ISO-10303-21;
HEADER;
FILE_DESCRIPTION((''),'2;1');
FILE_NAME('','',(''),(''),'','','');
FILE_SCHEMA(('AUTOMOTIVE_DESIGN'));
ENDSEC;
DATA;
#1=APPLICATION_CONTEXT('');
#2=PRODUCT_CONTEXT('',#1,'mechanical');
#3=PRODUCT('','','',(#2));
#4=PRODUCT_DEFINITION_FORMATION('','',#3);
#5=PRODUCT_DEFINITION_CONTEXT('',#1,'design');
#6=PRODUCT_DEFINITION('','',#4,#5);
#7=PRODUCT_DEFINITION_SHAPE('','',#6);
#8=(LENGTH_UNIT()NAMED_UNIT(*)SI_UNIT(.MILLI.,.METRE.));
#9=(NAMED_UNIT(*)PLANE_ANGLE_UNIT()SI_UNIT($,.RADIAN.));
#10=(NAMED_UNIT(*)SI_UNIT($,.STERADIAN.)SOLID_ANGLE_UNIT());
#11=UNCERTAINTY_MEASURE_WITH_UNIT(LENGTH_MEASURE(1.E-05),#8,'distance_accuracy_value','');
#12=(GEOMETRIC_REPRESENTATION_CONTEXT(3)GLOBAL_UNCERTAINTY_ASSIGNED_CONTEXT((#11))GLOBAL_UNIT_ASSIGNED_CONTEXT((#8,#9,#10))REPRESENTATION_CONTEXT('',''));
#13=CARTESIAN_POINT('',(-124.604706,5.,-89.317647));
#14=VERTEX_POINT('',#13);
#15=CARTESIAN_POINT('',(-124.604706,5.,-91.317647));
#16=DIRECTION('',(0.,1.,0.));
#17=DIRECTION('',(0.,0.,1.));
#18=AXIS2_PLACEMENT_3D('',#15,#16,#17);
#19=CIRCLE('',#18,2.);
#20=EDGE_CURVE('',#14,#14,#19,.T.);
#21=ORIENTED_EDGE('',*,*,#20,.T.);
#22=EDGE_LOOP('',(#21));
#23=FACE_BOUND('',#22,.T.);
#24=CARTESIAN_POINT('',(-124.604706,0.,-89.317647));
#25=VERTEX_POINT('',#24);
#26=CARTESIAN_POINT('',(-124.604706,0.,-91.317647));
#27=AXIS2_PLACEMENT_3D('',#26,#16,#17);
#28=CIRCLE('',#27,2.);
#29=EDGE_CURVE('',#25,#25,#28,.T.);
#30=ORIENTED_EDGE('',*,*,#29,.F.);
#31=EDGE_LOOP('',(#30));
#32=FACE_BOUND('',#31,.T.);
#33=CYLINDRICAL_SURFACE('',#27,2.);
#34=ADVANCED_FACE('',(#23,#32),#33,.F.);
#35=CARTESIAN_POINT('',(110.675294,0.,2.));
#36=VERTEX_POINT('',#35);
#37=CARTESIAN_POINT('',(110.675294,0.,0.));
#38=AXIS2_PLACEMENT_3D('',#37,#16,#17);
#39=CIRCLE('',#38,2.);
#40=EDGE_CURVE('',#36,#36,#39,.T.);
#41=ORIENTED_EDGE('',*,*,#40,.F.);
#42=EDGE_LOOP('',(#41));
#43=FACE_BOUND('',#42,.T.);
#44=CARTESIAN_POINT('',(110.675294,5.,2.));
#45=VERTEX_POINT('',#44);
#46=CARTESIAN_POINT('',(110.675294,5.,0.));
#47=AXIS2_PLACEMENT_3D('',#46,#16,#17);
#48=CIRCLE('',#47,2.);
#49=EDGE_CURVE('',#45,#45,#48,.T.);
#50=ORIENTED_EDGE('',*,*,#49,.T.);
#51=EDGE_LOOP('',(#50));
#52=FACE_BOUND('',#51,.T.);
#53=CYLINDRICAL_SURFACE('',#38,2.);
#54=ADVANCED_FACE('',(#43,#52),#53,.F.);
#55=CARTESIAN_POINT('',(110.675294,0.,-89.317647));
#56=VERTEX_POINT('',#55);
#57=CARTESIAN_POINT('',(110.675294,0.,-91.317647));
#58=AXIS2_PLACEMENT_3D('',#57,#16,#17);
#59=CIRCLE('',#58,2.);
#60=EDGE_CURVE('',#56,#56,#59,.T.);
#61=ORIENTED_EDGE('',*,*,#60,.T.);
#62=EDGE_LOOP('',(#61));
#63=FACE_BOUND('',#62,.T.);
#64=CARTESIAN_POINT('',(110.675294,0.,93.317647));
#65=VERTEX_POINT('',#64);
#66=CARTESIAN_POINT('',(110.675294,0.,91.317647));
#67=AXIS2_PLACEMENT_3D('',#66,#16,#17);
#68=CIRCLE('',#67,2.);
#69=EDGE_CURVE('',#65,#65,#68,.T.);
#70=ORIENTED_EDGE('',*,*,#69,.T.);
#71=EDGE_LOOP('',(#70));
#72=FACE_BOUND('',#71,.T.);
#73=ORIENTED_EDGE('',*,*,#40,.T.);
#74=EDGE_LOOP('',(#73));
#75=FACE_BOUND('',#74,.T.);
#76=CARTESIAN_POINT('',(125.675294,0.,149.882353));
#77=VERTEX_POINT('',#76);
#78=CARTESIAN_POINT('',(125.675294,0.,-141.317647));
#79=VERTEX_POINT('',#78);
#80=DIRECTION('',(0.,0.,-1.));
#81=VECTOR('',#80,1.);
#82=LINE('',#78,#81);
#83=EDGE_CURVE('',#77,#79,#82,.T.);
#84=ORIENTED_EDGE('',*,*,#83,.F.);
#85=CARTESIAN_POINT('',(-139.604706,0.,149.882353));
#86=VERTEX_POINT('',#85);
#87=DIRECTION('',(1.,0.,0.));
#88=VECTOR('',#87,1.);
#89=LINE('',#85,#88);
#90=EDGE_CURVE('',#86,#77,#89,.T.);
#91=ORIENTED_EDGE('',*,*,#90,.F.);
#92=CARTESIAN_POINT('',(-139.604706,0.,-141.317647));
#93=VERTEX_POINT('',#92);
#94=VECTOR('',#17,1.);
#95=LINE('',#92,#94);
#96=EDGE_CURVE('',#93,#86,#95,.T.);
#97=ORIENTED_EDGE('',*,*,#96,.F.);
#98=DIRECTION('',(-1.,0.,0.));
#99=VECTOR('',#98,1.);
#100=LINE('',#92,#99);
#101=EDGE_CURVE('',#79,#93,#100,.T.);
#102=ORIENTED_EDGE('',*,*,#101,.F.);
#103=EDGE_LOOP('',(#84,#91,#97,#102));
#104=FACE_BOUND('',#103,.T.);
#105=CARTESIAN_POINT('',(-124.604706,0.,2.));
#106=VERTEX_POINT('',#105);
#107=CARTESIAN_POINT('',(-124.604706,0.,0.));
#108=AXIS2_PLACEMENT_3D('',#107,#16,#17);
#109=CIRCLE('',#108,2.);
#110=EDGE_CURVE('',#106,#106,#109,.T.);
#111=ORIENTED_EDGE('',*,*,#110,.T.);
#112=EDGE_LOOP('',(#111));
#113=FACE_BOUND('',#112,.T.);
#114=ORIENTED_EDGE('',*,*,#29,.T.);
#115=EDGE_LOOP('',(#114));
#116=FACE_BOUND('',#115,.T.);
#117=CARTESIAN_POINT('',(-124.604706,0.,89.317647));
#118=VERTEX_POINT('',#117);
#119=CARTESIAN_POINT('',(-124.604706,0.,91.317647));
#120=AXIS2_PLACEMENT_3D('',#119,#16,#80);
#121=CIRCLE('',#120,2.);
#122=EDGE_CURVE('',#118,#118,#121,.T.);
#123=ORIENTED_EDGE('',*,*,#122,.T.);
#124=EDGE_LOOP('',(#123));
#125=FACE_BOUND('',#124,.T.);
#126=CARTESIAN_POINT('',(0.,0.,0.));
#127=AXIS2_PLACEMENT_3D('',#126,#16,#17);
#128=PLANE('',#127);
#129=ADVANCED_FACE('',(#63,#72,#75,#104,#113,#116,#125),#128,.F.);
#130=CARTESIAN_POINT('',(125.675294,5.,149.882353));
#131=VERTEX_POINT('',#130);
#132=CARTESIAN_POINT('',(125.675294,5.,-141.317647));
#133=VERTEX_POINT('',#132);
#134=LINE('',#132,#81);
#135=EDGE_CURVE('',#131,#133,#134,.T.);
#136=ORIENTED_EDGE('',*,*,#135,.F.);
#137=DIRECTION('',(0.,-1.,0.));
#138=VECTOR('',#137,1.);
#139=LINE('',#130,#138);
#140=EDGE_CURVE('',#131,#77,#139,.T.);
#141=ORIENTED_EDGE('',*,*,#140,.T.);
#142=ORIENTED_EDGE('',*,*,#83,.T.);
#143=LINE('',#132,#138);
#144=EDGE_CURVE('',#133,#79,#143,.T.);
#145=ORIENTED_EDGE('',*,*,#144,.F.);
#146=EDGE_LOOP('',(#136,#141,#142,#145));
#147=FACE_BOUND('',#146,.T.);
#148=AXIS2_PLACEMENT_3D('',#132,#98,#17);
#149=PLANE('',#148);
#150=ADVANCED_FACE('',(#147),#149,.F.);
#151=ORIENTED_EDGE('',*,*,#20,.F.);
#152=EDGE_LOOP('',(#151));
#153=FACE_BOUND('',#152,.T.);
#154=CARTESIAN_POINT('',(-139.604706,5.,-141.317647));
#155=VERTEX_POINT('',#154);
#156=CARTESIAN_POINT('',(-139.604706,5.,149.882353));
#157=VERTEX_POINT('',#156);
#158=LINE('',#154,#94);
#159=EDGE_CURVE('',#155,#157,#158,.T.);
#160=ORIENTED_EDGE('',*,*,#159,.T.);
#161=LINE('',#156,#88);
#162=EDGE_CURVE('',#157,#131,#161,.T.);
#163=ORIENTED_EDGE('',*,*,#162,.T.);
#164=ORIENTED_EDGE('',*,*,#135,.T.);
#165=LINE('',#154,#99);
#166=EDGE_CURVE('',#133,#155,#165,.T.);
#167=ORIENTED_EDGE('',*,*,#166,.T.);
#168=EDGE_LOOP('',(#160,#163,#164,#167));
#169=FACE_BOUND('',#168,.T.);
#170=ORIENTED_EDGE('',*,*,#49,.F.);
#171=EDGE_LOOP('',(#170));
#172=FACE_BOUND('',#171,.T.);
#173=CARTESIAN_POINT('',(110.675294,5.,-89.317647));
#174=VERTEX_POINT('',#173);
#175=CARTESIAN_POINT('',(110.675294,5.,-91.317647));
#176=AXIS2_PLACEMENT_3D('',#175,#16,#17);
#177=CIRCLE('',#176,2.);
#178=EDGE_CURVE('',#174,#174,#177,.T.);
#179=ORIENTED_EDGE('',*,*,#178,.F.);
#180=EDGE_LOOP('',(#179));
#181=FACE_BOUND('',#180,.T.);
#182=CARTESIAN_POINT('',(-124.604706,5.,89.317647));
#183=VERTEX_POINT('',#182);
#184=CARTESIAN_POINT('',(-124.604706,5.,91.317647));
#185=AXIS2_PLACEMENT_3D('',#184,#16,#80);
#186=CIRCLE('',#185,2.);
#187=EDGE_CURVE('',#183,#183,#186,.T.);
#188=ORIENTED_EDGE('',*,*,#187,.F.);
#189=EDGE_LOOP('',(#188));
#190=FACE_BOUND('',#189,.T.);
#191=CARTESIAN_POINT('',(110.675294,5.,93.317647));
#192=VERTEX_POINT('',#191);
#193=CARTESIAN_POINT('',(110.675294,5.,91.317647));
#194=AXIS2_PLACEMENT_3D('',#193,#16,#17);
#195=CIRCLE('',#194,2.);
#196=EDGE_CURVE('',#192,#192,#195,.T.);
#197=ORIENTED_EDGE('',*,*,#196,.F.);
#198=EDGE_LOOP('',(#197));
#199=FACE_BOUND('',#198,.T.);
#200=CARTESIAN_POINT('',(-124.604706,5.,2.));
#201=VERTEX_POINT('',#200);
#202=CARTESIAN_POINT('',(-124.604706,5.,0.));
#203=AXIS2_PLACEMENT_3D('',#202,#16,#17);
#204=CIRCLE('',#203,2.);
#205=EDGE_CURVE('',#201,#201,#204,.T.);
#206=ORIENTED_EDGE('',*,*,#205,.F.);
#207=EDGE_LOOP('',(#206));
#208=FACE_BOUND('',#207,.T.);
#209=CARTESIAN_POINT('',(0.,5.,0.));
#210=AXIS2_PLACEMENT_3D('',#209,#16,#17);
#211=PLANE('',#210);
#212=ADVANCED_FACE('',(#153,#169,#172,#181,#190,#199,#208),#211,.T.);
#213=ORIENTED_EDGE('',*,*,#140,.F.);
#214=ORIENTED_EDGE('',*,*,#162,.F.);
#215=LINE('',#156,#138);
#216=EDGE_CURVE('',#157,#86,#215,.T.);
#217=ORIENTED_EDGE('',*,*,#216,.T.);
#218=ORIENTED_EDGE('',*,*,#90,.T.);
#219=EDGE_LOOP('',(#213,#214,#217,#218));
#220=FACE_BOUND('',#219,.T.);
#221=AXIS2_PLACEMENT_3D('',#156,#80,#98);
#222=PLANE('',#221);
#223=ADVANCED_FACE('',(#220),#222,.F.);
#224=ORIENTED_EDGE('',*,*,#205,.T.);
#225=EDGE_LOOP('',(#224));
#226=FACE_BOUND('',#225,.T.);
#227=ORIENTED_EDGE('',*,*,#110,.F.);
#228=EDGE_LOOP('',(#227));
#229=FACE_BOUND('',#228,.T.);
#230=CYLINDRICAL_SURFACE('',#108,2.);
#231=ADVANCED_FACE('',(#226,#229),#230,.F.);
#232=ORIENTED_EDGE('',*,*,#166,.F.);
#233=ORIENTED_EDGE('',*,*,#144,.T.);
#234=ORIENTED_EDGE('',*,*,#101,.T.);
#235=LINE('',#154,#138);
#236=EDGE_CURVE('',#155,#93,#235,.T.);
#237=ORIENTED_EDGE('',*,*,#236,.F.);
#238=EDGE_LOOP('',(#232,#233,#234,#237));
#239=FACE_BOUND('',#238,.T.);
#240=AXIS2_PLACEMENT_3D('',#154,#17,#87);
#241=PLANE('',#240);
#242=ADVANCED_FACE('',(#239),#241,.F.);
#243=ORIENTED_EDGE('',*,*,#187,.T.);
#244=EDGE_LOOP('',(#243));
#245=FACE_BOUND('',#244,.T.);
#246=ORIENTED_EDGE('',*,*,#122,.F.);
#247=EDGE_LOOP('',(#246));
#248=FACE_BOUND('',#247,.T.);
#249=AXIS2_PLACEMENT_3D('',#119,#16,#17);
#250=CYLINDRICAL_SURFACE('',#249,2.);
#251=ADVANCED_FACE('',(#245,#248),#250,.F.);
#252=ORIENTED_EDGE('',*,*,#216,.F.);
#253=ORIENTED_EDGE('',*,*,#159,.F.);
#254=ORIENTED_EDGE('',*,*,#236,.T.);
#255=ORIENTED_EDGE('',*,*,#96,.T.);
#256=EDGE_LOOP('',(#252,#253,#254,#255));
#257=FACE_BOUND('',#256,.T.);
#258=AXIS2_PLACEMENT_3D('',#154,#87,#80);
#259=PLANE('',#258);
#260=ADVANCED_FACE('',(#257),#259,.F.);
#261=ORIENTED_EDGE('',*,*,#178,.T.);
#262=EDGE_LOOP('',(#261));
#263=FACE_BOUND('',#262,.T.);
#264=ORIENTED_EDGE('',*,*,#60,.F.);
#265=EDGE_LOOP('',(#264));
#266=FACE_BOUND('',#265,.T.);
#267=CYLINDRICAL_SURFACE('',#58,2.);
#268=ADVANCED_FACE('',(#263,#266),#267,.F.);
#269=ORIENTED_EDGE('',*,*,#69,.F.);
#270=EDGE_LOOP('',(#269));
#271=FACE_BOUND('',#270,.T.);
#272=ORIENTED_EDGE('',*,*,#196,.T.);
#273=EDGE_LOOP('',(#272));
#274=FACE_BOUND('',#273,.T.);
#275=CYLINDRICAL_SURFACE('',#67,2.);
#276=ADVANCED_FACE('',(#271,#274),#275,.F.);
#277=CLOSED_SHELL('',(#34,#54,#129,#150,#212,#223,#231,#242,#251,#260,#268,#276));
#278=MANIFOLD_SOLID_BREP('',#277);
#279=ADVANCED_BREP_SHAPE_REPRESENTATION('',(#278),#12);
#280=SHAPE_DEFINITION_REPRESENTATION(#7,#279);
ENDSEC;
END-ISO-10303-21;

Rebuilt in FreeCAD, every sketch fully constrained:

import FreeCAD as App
import Part
import Sketcher
from FreeCAD import Vector
Q = App.Units.Quantity

doc = App.newDocument("Part")
body = doc.addObject("PartDesign::Body", "Body")

# Sketch on XZ plane
sketch1 = body.newObject("Sketcher::SketchObject", "Sketch")
sketch1.AttachmentSupport = (doc.getObject("XZ_Plane"), [""])
sketch1.MapMode = "FlatFace"
sketch1.addGeometry(Part.LineSegment(Vector(-139.604706, -141.317647, 0), Vector(-139.604706, 149.882353, 0)), False)
sketch1.addGeometry(Part.LineSegment(Vector(-139.604706, 149.882353, 0), Vector(125.675294, 149.882353, 0)), False)
sketch1.addGeometry(Part.LineSegment(Vector(125.675294, 149.882353, 0), Vector(125.675294, -141.317647, 0)), False)
sketch1.addGeometry(Part.LineSegment(Vector(125.675294, -141.317647, 0), Vector(-139.604706, -141.317647, 0)), False)
sketch1.addConstraint(Sketcher.Constraint("Coincident", 0, 2, 1, 1))
sketch1.addConstraint(Sketcher.Constraint("Coincident", 1, 2, 2, 1))
sketch1.addConstraint(Sketcher.Constraint("Coincident", 2, 2, 3, 1))
sketch1.addConstraint(Sketcher.Constraint("Coincident", 3, 2, 0, 1))
sketch1.addConstraint(Sketcher.Constraint("Vertical", 0))
sketch1.addConstraint(Sketcher.Constraint("Horizontal", 1))
sketch1.addConstraint(Sketcher.Constraint("Vertical", 2))
sketch1.addConstraint(Sketcher.Constraint("Horizontal", 3))
sketch1.addConstraint(Sketcher.Constraint("DistanceY", 0, 1, 0, 2, Q("291.2 mm")))
sketch1.addConstraint(Sketcher.Constraint("DistanceX", 1, 1, 1, 2, Q("265.28 mm")))
sketch1.addConstraint(Sketcher.Constraint("DistanceX", 0, 2, -1, 1, Q("139.604706 mm")))
sketch1.addConstraint(Sketcher.Constraint("DistanceY", -1, 1, 0, 2, Q("149.882353 mm")))
pad1 = body.newObject("PartDesign::Pad", "Pad")
pad1.Profile = sketch1
pad1.Length = 5
pad1.Reversed = True

# Sketch on XZ plane
sketch2 = body.newObject("Sketcher::SketchObject", "Sketch001")
sketch2.AttachmentSupport = (doc.getObject("XZ_Plane"), [""])
sketch2.MapMode = "FlatFace"
sketch2.AttachmentOffset = App.Placement(Vector(0, 0, -5), App.Rotation())
sketch2.addGeometry(Part.Circle(Vector(-124.604706, -91.317647, 0), Vector(0, 0, 1), 2), False)
sketch2.addGeometry(Part.Circle(Vector(-124.604706, 0, 0), Vector(0, 0, 1), 2), False)
sketch2.addGeometry(Part.Circle(Vector(-124.604706, 91.317647, 0), Vector(0, 0, 1), 2), False)
sketch2.addGeometry(Part.Circle(Vector(110.675294, -91.317647, 0), Vector(0, 0, 1), 2), False)
sketch2.addGeometry(Part.Circle(Vector(110.675294, 0, 0), Vector(0, 0, 1), 2), False)
sketch2.addGeometry(Part.Circle(Vector(110.675294, 91.317647, 0), Vector(0, 0, 1), 2), False)
sketch2.addConstraint(Sketcher.Constraint("Equal", 0, 1))
sketch2.addConstraint(Sketcher.Constraint("Equal", 1, 2))
sketch2.addConstraint(Sketcher.Constraint("Equal", 2, 3))
sketch2.addConstraint(Sketcher.Constraint("Equal", 3, 4))
sketch2.addConstraint(Sketcher.Constraint("Equal", 4, 5))
sketch2.addConstraint(Sketcher.Constraint("Symmetric", 0, 3, 2, 3, -1))
sketch2.addConstraint(Sketcher.Constraint("Symmetric", 3, 3, 5, 3, -1))
sketch2.addConstraint(Sketcher.Constraint("PointOnObject", 1, 3, -1))
sketch2.addConstraint(Sketcher.Constraint("PointOnObject", 4, 3, -1))
sketch2.addConstraint(Sketcher.Constraint("Horizontal", 0, 3, 3, 3))
sketch2.addConstraint(Sketcher.Constraint("Vertical", 0, 3, 1, 3))
sketch2.addConstraint(Sketcher.Constraint("Vertical", 3, 3, 4, 3))
sketch2.addConstraint(Sketcher.Constraint("Diameter", 0, Q("4 mm")))
sketch2.addConstraint(Sketcher.Constraint("DistanceX", 0, 3, 3, 3, Q("235.28 mm")))
sketch2.addConstraint(Sketcher.Constraint("DistanceX", 0, 3, -1, 1, Q("124.604706 mm")))
sketch2.addConstraint(Sketcher.Constraint("DistanceY", 0, 3, -1, 1, Q("91.317647 mm")))
pocket1 = body.newObject("PartDesign::Pocket", "Pocket")
pocket1.Profile = sketch2
pocket1.Length = 5
pocket1.Reversed = True

doc.recompute()
